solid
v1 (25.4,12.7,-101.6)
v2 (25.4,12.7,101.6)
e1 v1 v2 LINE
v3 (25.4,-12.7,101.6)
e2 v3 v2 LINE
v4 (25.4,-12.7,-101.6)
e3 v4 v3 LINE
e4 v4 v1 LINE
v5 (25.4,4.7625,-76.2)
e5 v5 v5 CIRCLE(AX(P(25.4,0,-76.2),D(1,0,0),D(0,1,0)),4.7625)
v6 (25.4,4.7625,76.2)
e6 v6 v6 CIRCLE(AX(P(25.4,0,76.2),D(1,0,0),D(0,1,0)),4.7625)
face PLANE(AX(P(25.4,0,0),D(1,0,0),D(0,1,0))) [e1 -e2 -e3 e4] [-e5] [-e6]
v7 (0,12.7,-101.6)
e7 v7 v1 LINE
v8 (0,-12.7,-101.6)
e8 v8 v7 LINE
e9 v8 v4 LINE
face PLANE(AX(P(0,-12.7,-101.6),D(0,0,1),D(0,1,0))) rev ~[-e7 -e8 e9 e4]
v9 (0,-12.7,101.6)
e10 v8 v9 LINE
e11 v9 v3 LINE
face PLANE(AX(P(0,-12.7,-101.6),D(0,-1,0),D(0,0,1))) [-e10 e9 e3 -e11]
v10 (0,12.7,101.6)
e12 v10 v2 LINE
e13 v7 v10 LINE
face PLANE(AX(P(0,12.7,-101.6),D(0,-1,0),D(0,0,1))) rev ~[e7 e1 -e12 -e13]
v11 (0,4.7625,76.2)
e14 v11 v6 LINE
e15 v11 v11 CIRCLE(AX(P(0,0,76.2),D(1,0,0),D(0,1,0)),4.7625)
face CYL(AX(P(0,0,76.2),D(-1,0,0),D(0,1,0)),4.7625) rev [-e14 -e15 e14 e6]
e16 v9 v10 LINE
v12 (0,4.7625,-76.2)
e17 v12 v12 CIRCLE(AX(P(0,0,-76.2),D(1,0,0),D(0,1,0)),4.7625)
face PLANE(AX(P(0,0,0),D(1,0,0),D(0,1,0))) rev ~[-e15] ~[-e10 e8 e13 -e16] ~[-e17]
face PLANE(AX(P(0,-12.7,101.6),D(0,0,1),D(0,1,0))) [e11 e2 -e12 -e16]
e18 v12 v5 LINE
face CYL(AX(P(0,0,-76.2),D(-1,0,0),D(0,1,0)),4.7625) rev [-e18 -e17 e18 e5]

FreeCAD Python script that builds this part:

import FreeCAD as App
import Part
import Sketcher

V = App.Vector
Q = App.Units.Quantity

doc = App.newDocument("Part")
params = doc.addObject("Spreadsheet::Sheet", "Params")
for row, (alias, value) in enumerate([
    ("sketch1_width", "1 in"),
    ("sketch1_height", "8 in"),
    ("sketch1_diameter", "0.375 in"),
    ("pad1_length", "1 in"),
], start=1):
    params.set(f"A{row}", alias)
    params.set(f"B{row}", "=" + value)
    params.setAlias(f"B{row}", alias)

body = doc.addObject("PartDesign::Body", "Body")

sketch1 = body.newObject("Sketcher::SketchObject", "Sketch")
sketch1.AttachmentSupport = (doc.getObject("YZ_Plane"), [""])
sketch1.MapMode = "FlatFace"
sketch1.addGeometry(Part.LineSegment(V(-12.7, 101.6, 0), V(-12.7, -101.6, 0)), False)
sketch1.addGeometry(Part.LineSegment(V(-12.7, -101.6, 0), V(12.7, -101.6, 0)), False)
sketch1.addGeometry(Part.LineSegment(V(12.7, -101.6, 0), V(12.7, 101.6, 0)), False)
sketch1.addGeometry(Part.LineSegment(V(12.7, 101.6, 0), V(-12.7, 101.6, 0)), False)
sketch1.addGeometry(Part.Circle(V(0, -76.2, 0), V(0, 0, 1), 4.8), False)
sketch1.addGeometry(Part.Circle(V(0, 76.2, 0), V(0, 0, 1), 4.8), False)
sketch1.addConstraint(Sketcher.Constraint("Coincident", 0, 2, 1, 1))
sketch1.addConstraint(Sketcher.Constraint("Coincident", 1, 2, 2, 1))
sketch1.addConstraint(Sketcher.Constraint("Coincident", 2, 2, 3, 1))
sketch1.addConstraint(Sketcher.Constraint("Coincident", 3, 2, 0, 1))
sketch1.addConstraint(Sketcher.Constraint("Vertical", 0))
sketch1.addConstraint(Sketcher.Constraint("Horizontal", 1))
sketch1.addConstraint(Sketcher.Constraint("Vertical", 2))
sketch1.addConstraint(Sketcher.Constraint("Horizontal", 3))
sketch1.addConstraint(Sketcher.Constraint("Equal", 4, 5))
sketch1.addConstraint(Sketcher.Constraint("Symmetric", 4, 3, 5, 3, -1, 1))
sketch1.addConstraint(Sketcher.Constraint("Symmetric", 0, 2, 2, 2, -1, 1))
sketch1.addConstraint(Sketcher.Constraint("PointOnObject", 4, 3, -2))
sketch1.addConstraint(Sketcher.Constraint("DistanceX", 1, 1, 1, 2, Q("1 in")))
sketch1.addConstraint(Sketcher.Constraint("DistanceY", 0, 2, 0, 1, Q("8 in")))
sketch1.addConstraint(Sketcher.Constraint("Diameter", 4, Q("0.375 in")))
sketch1.addConstraint(Sketcher.Constraint("DistanceY", 4, 3, -1, 1, Q("3 in")))
sketch1.setExpression("Constraints[12]", "Params.sketch1_width")
sketch1.setExpression("Constraints[13]", "Params.sketch1_height")
sketch1.setExpression("Constraints[14]", "Params.sketch1_diameter")
pad1 = body.newObject("PartDesign::Pad", "Pad")
pad1.Profile = sketch1
pad1.setExpression("Length", "Params.pad1_length")

doc.recompute()
